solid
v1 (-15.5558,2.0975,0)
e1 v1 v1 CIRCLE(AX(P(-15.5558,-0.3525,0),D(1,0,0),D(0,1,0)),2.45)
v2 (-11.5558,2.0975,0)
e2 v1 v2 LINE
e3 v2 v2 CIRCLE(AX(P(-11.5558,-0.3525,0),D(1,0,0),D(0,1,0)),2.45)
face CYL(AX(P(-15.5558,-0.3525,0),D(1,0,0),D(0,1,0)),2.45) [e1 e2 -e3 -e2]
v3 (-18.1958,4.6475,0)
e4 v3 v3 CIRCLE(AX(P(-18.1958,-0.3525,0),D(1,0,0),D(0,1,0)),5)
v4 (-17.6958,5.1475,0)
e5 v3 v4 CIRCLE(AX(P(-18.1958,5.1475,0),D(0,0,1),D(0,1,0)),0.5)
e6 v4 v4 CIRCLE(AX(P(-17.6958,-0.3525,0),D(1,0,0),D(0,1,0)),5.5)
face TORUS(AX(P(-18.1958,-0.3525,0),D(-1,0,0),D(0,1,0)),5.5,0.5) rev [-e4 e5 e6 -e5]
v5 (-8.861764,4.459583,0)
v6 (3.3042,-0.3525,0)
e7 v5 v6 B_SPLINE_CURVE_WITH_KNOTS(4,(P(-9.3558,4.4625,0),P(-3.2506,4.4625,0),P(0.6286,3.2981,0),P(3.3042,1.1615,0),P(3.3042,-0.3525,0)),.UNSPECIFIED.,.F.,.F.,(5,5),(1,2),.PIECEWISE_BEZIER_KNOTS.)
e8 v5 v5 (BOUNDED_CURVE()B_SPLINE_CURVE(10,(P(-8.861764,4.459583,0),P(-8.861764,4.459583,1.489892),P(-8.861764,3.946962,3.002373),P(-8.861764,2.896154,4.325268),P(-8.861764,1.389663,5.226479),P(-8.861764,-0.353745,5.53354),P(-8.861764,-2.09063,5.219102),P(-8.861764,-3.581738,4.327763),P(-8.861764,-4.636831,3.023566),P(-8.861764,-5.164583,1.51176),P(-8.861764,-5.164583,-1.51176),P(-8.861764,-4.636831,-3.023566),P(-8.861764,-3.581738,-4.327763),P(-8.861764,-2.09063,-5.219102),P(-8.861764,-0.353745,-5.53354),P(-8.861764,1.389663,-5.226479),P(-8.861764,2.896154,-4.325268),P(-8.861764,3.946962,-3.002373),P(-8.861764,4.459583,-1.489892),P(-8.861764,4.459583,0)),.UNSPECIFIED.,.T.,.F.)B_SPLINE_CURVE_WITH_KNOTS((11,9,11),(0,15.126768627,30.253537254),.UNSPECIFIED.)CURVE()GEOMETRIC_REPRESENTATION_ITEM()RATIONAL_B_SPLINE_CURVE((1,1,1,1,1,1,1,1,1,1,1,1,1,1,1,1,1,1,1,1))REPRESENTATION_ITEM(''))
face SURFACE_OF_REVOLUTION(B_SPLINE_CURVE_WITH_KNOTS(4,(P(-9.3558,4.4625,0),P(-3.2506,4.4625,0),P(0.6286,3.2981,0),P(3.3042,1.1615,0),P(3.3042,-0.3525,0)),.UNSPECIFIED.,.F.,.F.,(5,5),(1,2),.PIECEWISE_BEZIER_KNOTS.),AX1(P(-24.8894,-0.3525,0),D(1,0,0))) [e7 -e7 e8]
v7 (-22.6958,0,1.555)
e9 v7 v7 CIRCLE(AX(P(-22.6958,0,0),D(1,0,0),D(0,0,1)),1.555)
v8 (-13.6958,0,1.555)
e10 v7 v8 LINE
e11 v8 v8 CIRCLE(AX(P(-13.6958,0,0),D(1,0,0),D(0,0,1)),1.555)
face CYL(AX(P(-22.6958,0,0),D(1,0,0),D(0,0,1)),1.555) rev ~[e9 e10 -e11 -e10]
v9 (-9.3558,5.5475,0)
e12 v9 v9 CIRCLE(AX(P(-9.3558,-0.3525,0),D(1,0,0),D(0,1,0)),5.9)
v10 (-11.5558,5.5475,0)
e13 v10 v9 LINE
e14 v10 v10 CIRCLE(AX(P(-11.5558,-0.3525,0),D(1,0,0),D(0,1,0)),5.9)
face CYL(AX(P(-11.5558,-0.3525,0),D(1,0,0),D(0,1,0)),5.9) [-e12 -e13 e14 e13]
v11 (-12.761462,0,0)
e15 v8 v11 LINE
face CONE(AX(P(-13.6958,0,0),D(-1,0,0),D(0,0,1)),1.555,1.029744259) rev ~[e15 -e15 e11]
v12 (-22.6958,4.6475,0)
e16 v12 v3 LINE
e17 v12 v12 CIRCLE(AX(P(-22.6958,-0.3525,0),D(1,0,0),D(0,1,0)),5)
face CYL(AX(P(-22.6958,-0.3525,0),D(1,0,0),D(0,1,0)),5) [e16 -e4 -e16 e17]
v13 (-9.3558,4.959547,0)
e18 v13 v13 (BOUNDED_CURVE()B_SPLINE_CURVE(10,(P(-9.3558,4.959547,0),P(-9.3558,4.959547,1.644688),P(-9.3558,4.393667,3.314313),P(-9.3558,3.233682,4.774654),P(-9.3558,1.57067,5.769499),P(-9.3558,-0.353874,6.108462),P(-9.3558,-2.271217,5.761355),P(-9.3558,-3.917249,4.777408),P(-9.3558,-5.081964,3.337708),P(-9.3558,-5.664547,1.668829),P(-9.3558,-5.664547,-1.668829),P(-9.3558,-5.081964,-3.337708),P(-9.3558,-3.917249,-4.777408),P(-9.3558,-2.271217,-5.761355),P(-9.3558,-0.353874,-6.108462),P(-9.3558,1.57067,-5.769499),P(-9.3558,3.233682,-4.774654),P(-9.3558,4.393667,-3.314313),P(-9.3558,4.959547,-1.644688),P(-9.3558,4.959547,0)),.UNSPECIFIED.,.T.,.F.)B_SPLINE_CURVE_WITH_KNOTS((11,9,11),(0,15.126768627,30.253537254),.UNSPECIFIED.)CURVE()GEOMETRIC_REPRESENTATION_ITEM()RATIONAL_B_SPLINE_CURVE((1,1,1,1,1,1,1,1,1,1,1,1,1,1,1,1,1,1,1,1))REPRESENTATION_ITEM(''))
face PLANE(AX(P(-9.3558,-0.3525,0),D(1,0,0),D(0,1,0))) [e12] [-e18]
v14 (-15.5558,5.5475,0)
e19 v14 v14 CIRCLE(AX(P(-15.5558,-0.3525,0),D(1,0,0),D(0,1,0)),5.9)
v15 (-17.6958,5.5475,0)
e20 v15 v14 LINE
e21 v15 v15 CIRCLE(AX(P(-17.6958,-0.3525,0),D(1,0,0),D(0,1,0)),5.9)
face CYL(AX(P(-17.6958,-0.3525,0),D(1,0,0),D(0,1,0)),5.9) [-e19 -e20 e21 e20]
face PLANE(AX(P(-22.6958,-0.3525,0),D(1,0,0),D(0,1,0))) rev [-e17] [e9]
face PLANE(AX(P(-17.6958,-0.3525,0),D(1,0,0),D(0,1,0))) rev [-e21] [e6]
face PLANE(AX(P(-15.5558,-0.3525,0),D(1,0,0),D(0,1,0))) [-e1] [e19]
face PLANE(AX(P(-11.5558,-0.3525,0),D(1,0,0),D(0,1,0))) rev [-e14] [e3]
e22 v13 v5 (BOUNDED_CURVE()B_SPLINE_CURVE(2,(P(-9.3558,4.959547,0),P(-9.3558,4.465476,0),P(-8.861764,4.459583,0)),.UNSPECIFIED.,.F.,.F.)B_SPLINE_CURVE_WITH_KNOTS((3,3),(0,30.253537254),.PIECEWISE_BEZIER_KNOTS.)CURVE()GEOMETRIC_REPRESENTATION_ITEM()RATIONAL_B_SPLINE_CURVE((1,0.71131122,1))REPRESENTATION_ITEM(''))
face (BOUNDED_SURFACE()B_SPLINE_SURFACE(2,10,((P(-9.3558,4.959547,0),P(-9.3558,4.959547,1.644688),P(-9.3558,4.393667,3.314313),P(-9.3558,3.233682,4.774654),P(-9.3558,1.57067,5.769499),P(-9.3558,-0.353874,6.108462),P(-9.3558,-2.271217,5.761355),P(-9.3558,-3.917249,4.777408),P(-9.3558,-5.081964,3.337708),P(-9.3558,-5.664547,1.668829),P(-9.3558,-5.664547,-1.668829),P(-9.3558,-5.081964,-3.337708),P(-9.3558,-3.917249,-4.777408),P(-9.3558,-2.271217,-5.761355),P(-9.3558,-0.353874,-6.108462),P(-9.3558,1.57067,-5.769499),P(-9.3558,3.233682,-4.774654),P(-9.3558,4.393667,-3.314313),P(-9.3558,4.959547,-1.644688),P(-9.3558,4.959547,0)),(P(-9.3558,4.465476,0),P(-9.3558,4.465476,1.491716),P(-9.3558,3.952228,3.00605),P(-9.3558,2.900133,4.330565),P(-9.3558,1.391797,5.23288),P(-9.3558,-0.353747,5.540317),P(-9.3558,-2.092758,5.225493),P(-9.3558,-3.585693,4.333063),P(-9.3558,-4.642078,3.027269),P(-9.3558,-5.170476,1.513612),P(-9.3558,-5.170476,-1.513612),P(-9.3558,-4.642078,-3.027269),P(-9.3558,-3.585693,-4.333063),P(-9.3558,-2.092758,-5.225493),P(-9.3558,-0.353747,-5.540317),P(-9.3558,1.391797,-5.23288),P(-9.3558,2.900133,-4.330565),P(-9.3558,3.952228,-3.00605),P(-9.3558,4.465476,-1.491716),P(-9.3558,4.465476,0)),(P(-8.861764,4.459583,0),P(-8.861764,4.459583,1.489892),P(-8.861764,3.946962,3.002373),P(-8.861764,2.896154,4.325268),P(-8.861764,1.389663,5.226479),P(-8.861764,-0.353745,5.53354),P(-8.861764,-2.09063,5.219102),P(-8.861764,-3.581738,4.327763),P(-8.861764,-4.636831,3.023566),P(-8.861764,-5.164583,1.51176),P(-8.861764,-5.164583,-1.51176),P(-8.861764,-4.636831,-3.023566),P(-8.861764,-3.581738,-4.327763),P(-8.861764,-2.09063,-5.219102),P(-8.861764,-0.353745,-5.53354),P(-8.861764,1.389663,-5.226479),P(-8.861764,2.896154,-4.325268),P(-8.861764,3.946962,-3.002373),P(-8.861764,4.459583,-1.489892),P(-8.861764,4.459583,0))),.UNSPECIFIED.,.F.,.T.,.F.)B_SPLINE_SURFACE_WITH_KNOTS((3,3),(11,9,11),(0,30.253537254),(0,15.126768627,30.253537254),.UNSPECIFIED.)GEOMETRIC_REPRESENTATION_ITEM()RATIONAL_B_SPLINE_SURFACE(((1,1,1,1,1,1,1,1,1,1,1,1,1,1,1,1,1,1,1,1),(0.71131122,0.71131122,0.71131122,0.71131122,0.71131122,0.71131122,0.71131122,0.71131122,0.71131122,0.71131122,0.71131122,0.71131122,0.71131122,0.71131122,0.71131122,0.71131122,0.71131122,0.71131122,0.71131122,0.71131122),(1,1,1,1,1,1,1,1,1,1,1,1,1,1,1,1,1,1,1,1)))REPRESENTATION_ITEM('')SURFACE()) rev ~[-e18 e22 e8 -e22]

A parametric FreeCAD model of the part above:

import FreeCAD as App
import Part
import Sketcher

V = App.Vector
Q = App.Units.Quantity


def edges_at(feature, points):
    """Names of the edges that pass closest to the given points."""
    edges = feature.Shape.Edges
    near = lambda p: min(range(len(edges)), key=lambda i: edges[i].distToShape(Part.Vertex(*p))[0])
    return sorted({f"Edge{near(p) + 1}" for p in points})

doc = App.newDocument("Part")
params = doc.addObject("Spreadsheet::Sheet", "Params")
for row, (alias, value) in enumerate([
    ("sketch1_width", "26 mm"),
    ("sketch1_width2", "4 mm"),
    ("sketch1_width3", "5 mm"),
    ("sketch1_width4", "2.2 mm"),
    ("sketch1_height", "0.9 mm"),
    ("revolution_angle", "360 deg"),
    ("fillet_radius", "0.5 mm"),
    ("sketch2_diameter", "3.11 mm"),
    ("hole_diameter", "3.11 mm"),
    ("hole_depth", "9 mm"),
], start=1):
    params.set(f"A{row}", alias)
    params.set(f"B{row}", "=" + value)
    params.setAlias(f"B{row}", alias)

body = doc.addObject("PartDesign::Body", "Body")

sketch1 = body.newObject("Sketcher::SketchObject", "Sketch")
sketch1.AttachmentSupport = (doc.getObject("XY_Plane"), [""])
sketch1.MapMode = "FlatFace"
sketch1.addGeometry(Part.LineSegment(V(-22.6958, 4.6475, 0), V(-22.6958, -0.3525, 0)), False)
sketch1.addGeometry(Part.LineSegment(V(-22.6958, -0.3525, 0), V(3.3042, -0.3525, 0)), False)
sketch1.addGeometry(Part.BSplineCurve([V(-9.3558, 4.4625, 0), V(-3.2506, 4.4625, 0), V(0.6286, 3.2981, 0), V(3.3042, 1.1615, 0), V(3.3042, -0.3525, 0)], [5, 5], [1, 2], False, 4, [1, 1, 1, 1, 1], False), False)
sketch1.addGeometry(Part.LineSegment(V(-9.3558, 4.4625, 0), V(-9.3558, 5.5475, 0)), False)
sketch1.addGeometry(Part.LineSegment(V(-9.3558, 5.5475, 0), V(-11.5558, 5.5475, 0)), False)
sketch1.addGeometry(Part.LineSegment(V(-11.5558, 5.5475, 0), V(-11.5558, 2.0975, 0)), False)
sketch1.addGeometry(Part.LineSegment(V(-11.5558, 2.0975, 0), V(-15.5558, 2.0975, 0)), False)
sketch1.addGeometry(Part.LineSegment(V(-15.5558, 2.0975, 0), V(-15.5558, 5.5475, 0)), False)
sketch1.addGeometry(Part.LineSegment(V(-15.5558, 5.5475, 0), V(-17.6958, 5.5475, 0)), False)
sketch1.addGeometry(Part.LineSegment(V(-17.6958, 5.5475, 0), V(-17.6958, 4.6475, 0)), False)
sketch1.addGeometry(Part.LineSegment(V(-17.6958, 4.6475, 0), V(-22.6958, 4.6475, 0)), False)
sketch1.addGeometry(Part.LineSegment(V(-22.6958, -0.3525, 0), V(3.3042, -0.3525, 0)), True)
sketch1.addConstraint(Sketcher.Constraint("Block", 2))
sketch1.addConstraint(Sketcher.Constraint("Coincident", 0, 2, 1, 1))
sketch1.addConstraint(Sketcher.Constraint("Coincident", 1, 2, 2, 2))
sketch1.addConstraint(Sketcher.Constraint("Coincident", 2, 1, 3, 1))
sketch1.addConstraint(Sketcher.Constraint("Coincident", 3, 2, 4, 1))
sketch1.addConstraint(Sketcher.Constraint("Coincident", 4, 2, 5, 1))
sketch1.addConstraint(Sketcher.Constraint("Coincident", 5, 2, 6, 1))
sketch1.addConstraint(Sketcher.Constraint("Coincident", 6, 2, 7, 1))
sketch1.addConstraint(Sketcher.Constraint("Coincident", 7, 2, 8, 1))
sketch1.addConstraint(Sketcher.Constraint("Coincident", 8, 2, 9, 1))
sketch1.addConstraint(Sketcher.Constraint("Coincident", 9, 2, 10, 1))
sketch1.addConstraint(Sketcher.Constraint("Coincident", 10, 2, 0, 1))
sketch1.addConstraint(Sketcher.Constraint("Vertical", 0))
sketch1.addConstraint(Sketcher.Constraint("Horizontal", 1))
sketch1.addConstraint(Sketcher.Constraint("Vertical", 3))
sketch1.addConstraint(Sketcher.Constraint("Horizontal", 4))
sketch1.addConstraint(Sketcher.Constraint("Vertical", 5))
sketch1.addConstraint(Sketcher.Constraint("Horizontal", 6))
sketch1.addConstraint(Sketcher.Constraint("Vertical", 7))
sketch1.addConstraint(Sketcher.Constraint("Horizontal", 8))
sketch1.addConstraint(Sketcher.Constraint("Vertical", 9))
sketch1.addConstraint(Sketcher.Constraint("Horizontal", 10))
sketch1.addConstraint(Sketcher.Constraint("Horizontal", 11))
sketch1.addConstraint(Sketcher.Constraint("Coincident", 11, 1, 0, 2))
sketch1.addConstraint(Sketcher.Constraint("Horizontal", 4, 2, 7, 2))
sketch1.addConstraint(Sketcher.Constraint("Equal", 1, 11))
sketch1.addConstraint(Sketcher.Constraint("Equal", 10, 0))
sketch1.addConstraint(Sketcher.Constraint("DistanceX", 1, 1, 1, 2, Q("26 mm")))
sketch1.addConstraint(Sketcher.Constraint("DistanceX", 6, 2, 6, 1, Q("4 mm")))
sketch1.addConstraint(Sketcher.Constraint("DistanceX", 10, 2, 10, 1, Q("5 mm")))
sketch1.addConstraint(Sketcher.Constraint("DistanceX", 4, 2, 4, 1, Q("2.2 mm")))
sketch1.addConstraint(Sketcher.Constraint("DistanceY", 9, 2, 9, 1, Q("0.9 mm")))
sketch1.addConstraint(Sketcher.Constraint("DistanceY", 5, 2, 5, 1, Q("3.45 mm")))
sketch1.setExpression("Constraints[27]", "Params.sketch1_width")
sketch1.setExpression("Constraints[28]", "Params.sketch1_width2")
sketch1.setExpression("Constraints[29]", "Params.sketch1_width3")
sketch1.setExpression("Constraints[30]", "Params.sketch1_width4")
sketch1.setExpression("Constraints[31]", "Params.sketch1_height")
revolution = body.newObject("PartDesign::Revolution", "Revolution")
revolution.Profile = sketch1
revolution.ReferenceAxis = (sketch1, ["Axis0"])
revolution.setExpression("Angle", "Params.revolution_angle")
doc.recompute()

fillet = body.newObject("PartDesign::Fillet", "Fillet")
fillet.Base = (revolution, edges_at(revolution, [(-9.356, -5.168, 0), (-17.696, -5.353, 0)]))
fillet.setExpression("Radius", "Params.fillet_radius")

sketch2 = body.newObject("Sketcher::SketchObject", "Sketch001")
sketch2.AttachmentSupport = (doc.getObject("YZ_Plane"), [""])
sketch2.MapMode = "FlatFace"
sketch2.AttachmentOffset = App.Placement(V(0, 0, -22.6958), App.Rotation())
sketch2.addGeometry(Part.Circle(V(0, 0, 0), V(0, 0, 1), 1.6), False)
sketch2.addConstraint(Sketcher.Constraint("Coincident", 0, 3, -1, 1))
sketch2.addConstraint(Sketcher.Constraint("Diameter", 0, Q("3.11 mm")))
sketch2.setExpression("Constraints[1]", "Params.sketch2_diameter")
doc.recompute()
hole = body.newObject("PartDesign::Hole", "Hole")
hole.Profile = sketch2
hole.ThreadType = "None"
hole.setExpression("Diameter", "Params.hole_diameter")
hole.DepthType = "Dimension"
hole.setExpression("Depth", "Params.hole_depth")
hole.DrillPoint = "Angled"
hole.DrillPointAngle = 118
hole.Reversed = True

doc.recompute()
